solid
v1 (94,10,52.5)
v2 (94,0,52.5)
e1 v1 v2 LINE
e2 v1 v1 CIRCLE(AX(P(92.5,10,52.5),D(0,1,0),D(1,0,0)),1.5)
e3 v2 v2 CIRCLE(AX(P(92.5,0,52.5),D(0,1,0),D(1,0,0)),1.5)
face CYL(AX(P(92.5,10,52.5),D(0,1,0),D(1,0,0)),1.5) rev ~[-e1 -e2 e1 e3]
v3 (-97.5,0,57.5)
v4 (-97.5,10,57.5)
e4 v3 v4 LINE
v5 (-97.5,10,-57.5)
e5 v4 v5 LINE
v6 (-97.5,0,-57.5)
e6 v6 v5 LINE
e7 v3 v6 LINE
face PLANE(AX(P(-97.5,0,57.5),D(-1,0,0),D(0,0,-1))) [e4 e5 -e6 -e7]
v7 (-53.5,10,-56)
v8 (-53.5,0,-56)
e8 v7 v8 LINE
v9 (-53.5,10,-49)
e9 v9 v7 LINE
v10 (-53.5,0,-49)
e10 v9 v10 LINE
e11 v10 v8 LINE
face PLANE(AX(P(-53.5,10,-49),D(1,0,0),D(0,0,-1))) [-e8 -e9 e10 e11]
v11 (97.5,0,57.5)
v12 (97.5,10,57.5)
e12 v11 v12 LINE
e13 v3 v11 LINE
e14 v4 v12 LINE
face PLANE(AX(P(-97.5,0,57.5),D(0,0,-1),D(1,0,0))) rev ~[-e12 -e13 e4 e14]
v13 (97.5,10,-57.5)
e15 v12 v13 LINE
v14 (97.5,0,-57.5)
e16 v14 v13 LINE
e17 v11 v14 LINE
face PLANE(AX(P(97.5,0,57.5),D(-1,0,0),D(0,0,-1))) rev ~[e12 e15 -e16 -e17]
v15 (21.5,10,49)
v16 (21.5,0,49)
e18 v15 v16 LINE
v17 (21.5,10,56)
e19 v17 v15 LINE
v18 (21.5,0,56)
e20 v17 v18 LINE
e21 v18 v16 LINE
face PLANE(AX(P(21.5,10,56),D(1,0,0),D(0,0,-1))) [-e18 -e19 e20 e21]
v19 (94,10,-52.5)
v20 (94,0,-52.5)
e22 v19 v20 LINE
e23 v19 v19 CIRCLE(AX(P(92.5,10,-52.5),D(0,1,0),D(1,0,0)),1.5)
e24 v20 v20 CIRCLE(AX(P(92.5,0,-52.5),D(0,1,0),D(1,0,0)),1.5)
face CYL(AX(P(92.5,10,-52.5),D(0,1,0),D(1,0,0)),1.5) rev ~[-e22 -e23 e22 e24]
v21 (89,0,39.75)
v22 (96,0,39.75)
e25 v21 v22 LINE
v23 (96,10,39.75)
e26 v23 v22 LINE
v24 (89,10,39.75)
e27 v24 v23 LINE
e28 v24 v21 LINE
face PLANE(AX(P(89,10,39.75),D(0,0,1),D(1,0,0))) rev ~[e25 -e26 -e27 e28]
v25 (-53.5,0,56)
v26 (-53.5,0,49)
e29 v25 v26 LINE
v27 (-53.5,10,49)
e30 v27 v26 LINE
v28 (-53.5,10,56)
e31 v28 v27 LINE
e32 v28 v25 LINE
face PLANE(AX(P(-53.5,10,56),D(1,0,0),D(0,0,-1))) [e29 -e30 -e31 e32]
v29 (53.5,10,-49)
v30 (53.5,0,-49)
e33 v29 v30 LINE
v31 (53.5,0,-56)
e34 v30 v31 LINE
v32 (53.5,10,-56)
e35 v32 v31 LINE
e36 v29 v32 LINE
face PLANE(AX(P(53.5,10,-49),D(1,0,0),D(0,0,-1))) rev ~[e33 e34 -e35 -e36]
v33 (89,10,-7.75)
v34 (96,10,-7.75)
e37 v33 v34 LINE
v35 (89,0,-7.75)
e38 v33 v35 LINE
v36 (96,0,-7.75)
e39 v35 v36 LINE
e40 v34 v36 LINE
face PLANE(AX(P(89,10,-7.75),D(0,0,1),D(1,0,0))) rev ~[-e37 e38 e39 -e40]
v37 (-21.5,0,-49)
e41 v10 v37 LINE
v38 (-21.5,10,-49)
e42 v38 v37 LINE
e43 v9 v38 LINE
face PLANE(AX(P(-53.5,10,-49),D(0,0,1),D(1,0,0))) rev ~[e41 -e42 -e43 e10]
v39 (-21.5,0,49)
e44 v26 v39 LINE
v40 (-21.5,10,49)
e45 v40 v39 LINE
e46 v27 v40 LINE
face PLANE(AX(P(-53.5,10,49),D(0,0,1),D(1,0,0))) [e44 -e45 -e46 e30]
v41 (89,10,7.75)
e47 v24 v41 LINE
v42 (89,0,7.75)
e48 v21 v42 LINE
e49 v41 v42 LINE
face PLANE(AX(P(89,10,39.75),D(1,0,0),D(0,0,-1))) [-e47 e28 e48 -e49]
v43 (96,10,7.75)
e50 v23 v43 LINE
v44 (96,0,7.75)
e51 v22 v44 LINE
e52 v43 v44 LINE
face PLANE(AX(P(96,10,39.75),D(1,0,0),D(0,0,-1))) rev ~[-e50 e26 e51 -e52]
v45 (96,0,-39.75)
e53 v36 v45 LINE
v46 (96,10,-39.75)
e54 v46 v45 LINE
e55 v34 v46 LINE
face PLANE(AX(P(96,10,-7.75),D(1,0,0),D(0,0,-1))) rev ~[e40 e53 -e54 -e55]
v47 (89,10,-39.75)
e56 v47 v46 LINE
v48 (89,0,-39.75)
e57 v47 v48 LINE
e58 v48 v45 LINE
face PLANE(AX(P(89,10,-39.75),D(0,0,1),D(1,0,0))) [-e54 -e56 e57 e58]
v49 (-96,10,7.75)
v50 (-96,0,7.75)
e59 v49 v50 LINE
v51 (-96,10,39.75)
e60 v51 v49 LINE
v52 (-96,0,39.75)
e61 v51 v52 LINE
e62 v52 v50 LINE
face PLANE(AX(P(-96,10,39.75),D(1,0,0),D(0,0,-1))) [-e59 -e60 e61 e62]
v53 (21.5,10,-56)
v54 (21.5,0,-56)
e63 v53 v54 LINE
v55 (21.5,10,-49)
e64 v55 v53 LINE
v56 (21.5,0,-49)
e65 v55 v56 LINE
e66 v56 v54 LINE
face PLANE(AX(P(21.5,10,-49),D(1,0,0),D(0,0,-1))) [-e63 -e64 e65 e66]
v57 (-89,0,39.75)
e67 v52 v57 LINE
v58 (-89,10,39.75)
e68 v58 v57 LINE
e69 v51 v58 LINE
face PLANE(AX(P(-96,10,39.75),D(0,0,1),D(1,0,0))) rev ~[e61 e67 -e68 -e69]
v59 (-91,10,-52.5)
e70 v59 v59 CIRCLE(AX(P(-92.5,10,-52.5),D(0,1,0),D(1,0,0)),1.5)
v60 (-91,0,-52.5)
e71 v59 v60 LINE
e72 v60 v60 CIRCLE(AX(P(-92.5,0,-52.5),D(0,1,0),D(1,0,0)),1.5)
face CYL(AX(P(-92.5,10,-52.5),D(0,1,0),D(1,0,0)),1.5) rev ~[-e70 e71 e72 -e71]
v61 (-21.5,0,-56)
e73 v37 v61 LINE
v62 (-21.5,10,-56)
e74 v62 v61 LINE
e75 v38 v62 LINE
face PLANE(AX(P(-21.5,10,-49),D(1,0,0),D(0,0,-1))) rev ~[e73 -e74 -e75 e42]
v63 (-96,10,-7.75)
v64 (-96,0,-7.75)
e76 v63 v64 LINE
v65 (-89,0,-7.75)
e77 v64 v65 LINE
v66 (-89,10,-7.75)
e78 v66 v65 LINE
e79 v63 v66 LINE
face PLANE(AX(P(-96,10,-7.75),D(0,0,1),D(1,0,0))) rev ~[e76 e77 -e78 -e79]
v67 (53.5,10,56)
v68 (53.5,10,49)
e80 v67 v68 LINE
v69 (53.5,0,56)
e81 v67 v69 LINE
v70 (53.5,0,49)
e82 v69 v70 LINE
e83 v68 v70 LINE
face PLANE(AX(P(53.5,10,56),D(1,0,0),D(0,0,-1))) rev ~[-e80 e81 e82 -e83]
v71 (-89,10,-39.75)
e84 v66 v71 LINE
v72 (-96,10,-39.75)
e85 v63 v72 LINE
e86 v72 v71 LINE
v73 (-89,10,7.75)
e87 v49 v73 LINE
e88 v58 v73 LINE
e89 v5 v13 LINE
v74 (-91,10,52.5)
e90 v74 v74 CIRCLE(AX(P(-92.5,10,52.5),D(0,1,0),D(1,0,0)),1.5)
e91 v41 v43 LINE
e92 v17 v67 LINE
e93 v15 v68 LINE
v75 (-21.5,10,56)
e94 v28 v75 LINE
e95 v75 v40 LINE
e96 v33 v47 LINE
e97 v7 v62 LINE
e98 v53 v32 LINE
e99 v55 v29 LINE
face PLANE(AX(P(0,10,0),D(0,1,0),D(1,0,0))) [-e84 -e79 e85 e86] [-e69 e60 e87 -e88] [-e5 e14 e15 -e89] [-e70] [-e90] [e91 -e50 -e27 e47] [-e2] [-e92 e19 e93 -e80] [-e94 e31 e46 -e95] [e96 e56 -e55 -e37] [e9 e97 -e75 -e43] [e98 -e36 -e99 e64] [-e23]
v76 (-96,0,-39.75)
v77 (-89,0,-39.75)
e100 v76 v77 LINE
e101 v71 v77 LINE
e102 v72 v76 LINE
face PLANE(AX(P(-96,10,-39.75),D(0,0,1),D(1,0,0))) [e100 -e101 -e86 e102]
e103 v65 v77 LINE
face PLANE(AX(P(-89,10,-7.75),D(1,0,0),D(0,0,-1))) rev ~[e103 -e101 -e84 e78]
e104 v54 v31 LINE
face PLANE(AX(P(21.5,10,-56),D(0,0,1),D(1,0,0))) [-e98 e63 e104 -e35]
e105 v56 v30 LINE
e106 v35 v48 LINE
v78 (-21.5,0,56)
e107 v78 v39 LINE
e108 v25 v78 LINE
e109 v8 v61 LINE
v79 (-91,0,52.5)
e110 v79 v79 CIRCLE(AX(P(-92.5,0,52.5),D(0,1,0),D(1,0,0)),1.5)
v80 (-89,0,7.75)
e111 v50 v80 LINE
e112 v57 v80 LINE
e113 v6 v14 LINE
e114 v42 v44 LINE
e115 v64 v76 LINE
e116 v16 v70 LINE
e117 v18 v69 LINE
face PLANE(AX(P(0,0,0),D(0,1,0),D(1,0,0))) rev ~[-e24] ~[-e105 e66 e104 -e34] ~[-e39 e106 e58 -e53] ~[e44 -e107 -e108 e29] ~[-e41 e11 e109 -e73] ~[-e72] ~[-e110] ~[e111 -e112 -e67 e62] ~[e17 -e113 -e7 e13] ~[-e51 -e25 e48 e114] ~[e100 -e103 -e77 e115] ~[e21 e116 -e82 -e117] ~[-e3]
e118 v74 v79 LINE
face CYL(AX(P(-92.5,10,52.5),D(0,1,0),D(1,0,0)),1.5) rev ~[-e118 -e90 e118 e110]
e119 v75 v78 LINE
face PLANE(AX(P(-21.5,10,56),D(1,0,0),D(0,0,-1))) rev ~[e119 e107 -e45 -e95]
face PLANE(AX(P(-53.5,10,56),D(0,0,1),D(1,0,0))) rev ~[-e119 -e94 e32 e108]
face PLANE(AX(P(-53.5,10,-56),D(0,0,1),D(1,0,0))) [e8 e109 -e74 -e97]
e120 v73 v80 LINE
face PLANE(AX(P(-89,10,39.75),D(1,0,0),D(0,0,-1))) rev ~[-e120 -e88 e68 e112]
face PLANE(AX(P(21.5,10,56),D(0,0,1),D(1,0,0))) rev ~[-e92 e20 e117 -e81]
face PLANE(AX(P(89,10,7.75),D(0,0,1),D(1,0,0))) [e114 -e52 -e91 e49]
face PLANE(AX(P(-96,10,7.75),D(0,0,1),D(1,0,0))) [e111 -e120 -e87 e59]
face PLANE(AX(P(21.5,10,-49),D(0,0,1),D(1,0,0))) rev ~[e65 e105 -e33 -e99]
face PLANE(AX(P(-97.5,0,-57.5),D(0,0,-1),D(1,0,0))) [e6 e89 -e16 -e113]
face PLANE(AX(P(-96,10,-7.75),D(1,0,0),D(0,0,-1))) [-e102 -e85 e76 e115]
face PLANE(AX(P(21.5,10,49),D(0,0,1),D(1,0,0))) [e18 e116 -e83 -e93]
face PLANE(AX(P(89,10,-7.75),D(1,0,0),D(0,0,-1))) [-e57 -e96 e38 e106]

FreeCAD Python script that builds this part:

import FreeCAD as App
import Part
import Sketcher
from FreeCAD import Vector
Q = App.Units.Quantity


def add_polygon(sketch, points):
    """Adds a closed chain of lines whose ends are joined by coincident constraints."""
    first, n = sketch.GeometryCount, len(points)
    for a, b in zip(points, points[1:] + points[:1]):
        sketch.addGeometry(Part.LineSegment(App.Vector(*a, 0), App.Vector(*b, 0)), False)
    for i in range(n):
        sketch.addConstraint(Sketcher.Constraint("Coincident", first + i, 2, first + (i + 1) % n, 1))

doc = App.newDocument("Part")
body = doc.addObject("PartDesign::Body", "Body")

sketch1 = doc.addObject("Sketcher::SketchObject", "Sketch")
body.addObject(sketch1)
sketch1.AttachmentSupport = (doc.XZ_Plane, [""])
sketch1.MapMode = "FlatFace"
add_polygon(sketch1, [(-98, -58), (-98, 58), (98, 58), (98, -58)])
sketch1.addConstraint([
    Sketcher.Constraint("Vertical", 0),
    Sketcher.Constraint("Horizontal", 1),
    Sketcher.Constraint("Vertical", 2),
    Sketcher.Constraint("Horizontal", 3),
    Sketcher.Constraint("Symmetric", 0, 2, 2, 2, -1, 1),
    Sketcher.Constraint("DistanceX", 1, 1, 1, 2, Q("195 mm")),
    Sketcher.Constraint("DistanceY", 0, 1, 0, 2, Q("115 mm")),
])
pad1 = doc.addObject("PartDesign::Pad", "Pad")
body.addObject(pad1)
pad1.Profile = sketch1
pad1.Length = 10
pad1.Reversed = True

sketch2 = doc.addObject("Sketcher::SketchObject", "Sketch001")
body.addObject(sketch2)
sketch2.AttachmentSupport = (doc.XZ_Plane, [""])
sketch2.MapMode = "FlatFace"
sketch2.AttachmentOffset = App.Placement(Vector(0, 0, -10), App.Rotation())
add_polygon(sketch2, [(-54, 49), (-54, 56), (-22, 56), (-22, 49)])
add_polygon(sketch2, [(22, 49), (22, 56), (54, 56), (54, 49)])
add_polygon(sketch2, [(22, -56), (22, -49), (54, -49), (54, -56)])
add_polygon(sketch2, [(-54, -56), (-54, -49), (-22, -49), (-22, -56)])
add_polygon(sketch2, [(-96, -40), (-96, -8), (-89, -8), (-89, -40)])
add_polygon(sketch2, [(-96, 8), (-96, 40), (-89, 40), (-89, 8)])
add_polygon(sketch2, [(89, 8), (89, 40), (96, 40), (96, 8)])
add_polygon(sketch2, [(89, -40), (89, -8), (96, -8), (96, -40)])
sketch2.addConstraint([
    Sketcher.Constraint("Vertical", 0),
    Sketcher.Constraint("Horizontal", 1),
    Sketcher.Constraint("Vertical", 2),
    Sketcher.Constraint("Horizontal", 3),
    Sketcher.Constraint("Vertical", 4),
    Sketcher.Constraint("Horizontal", 5),
    Sketcher.Constraint("Vertical", 6),
    Sketcher.Constraint("Horizontal", 7),
    Sketcher.Constraint("Vertical", 8),
    Sketcher.Constraint("Horizontal", 9),
    Sketcher.Constraint("Vertical", 10),
    Sketcher.Constraint("Horizontal", 11),
    Sketcher.Constraint("Vertical", 12),
    Sketcher.Constraint("Horizontal", 13),
    Sketcher.Constraint("Vertical", 14),
    Sketcher.Constraint("Horizontal", 15),
    Sketcher.Constraint("Vertical", 16),
    Sketcher.Constraint("Horizontal", 17),
    Sketcher.Constraint("Vertical", 18),
    Sketcher.Constraint("Horizontal", 19),
    Sketcher.Constraint("Vertical", 20),
    Sketcher.Constraint("Horizontal", 21),
    Sketcher.Constraint("Vertical", 22),
    Sketcher.Constraint("Horizontal", 23),
    Sketcher.Constraint("Vertical", 24),
    Sketcher.Constraint("Horizontal", 25),
    Sketcher.Constraint("Vertical", 26),
    Sketcher.Constraint("Horizontal", 27),
    Sketcher.Constraint("Vertical", 28),
    Sketcher.Constraint("Horizontal", 29),
    Sketcher.Constraint("Vertical", 30),
    Sketcher.Constraint("Horizontal", 31),
    Sketcher.Constraint("Symmetric", 2, 2, 8, 2, -1, 1),
    Sketcher.Constraint("Symmetric", 0, 2, 10, 2, -1, 1),
    Sketcher.Constraint("Symmetric", 6, 2, 12, 2, -1, 1),
    Sketcher.Constraint("Symmetric", 4, 2, 14, 2, -1, 1),
    Sketcher.Constraint("Symmetric", 18, 2, 24, 2, -1, 1),
    Sketcher.Constraint("Symmetric", 16, 2, 26, 2, -1, 1),
    Sketcher.Constraint("Symmetric", 22, 2, 28, 2, -1, 1),
    Sketcher.Constraint("Symmetric", 20, 2, 30, 2, -1, 1),
    Sketcher.Constraint("Symmetric", 1, 2, 4, 2, -2),
    Sketcher.Constraint("Symmetric", 3, 2, 6, 2, -2),
    Sketcher.Constraint("Symmetric", 21, 2, 24, 2, -2),
    Sketcher.Constraint("Symmetric", 23, 2, 26, 2, -2),
    Sketcher.Constraint("Equal", 31, 0),
    Sketcher.Constraint("Equal", 15, 16),
    Sketcher.Constraint("DistanceX", 1, 1, 1, 2, Q("32 mm")),
    Sketcher.Constraint("DistanceX", 17, 1, 17, 2, Q("7 mm")),
    Sketcher.Constraint("DistanceY", -1, 1, 0, 2, Q("56 mm")),
    Sketcher.Constraint("DistanceX", 16, 2, -1, 1, Q("96 mm")),
    Sketcher.Constraint("DistanceX", 1, 2, 4, 2, Q("43 mm")),
    Sketcher.Constraint("DistanceY", 16, 2, 20, 2, Q("47.5 mm")),
])
pocket1 = doc.addObject("PartDesign::Pocket", "Pocket")
body.addObject(pocket1)
pocket1.Profile = sketch2
pocket1.Type = "ThroughAll"
pocket1.Reversed = True

sketch3 = doc.addObject("Sketcher::SketchObject", "Sketch002")
body.addObject(sketch3)
sketch3.AttachmentSupport = (doc.XZ_Plane, [""])
sketch3.MapMode = "FlatFace"
sketch3.AttachmentOffset = App.Placement(Vector(0, 0, -10), App.Rotation())
sketch3.addGeometry([
    Part.Circle(Vector(-92.5, -52.5, 0), Vector(0, 0, 1), 1.5),
    Part.Circle(Vector(92.5, -52.5, 0), Vector(0, 0, 1), 1.5),
    Part.Circle(Vector(92.5, 52.5, 0), Vector(0, 0, 1), 1.5),
    Part.Circle(Vector(-92.5, 52.5, 0), Vector(0, 0, 1), 1.5),
], False)
sketch3.addConstraint([
    Sketcher.Constraint("Equal", 0, 1),
    Sketcher.Constraint("Equal", 1, 2),
    Sketcher.Constraint("Equal", 2, 3),
    Sketcher.Constraint("Symmetric", 0, 3, 2, 3, -1, 1),
    Sketcher.Constraint("Symmetric", 1, 3, 3, 3, -1, 1),
    Sketcher.Constraint("Symmetric", 0, 3, 1, 3, -2),
    Sketcher.Constraint("Diameter", 0, Q("3 mm")),
    Sketcher.Constraint("DistanceX", 0, 3, 1, 3, Q("185 mm")),
    Sketcher.Constraint("DistanceY", 1, 3, 2, 3, Q("105 mm")),
])
pocket2 = doc.addObject("PartDesign::Pocket", "Pocket001")
body.addObject(pocket2)
pocket2.Profile = sketch3
pocket2.Type = "ThroughAll"
pocket2.Reversed = True

doc.recompute()
